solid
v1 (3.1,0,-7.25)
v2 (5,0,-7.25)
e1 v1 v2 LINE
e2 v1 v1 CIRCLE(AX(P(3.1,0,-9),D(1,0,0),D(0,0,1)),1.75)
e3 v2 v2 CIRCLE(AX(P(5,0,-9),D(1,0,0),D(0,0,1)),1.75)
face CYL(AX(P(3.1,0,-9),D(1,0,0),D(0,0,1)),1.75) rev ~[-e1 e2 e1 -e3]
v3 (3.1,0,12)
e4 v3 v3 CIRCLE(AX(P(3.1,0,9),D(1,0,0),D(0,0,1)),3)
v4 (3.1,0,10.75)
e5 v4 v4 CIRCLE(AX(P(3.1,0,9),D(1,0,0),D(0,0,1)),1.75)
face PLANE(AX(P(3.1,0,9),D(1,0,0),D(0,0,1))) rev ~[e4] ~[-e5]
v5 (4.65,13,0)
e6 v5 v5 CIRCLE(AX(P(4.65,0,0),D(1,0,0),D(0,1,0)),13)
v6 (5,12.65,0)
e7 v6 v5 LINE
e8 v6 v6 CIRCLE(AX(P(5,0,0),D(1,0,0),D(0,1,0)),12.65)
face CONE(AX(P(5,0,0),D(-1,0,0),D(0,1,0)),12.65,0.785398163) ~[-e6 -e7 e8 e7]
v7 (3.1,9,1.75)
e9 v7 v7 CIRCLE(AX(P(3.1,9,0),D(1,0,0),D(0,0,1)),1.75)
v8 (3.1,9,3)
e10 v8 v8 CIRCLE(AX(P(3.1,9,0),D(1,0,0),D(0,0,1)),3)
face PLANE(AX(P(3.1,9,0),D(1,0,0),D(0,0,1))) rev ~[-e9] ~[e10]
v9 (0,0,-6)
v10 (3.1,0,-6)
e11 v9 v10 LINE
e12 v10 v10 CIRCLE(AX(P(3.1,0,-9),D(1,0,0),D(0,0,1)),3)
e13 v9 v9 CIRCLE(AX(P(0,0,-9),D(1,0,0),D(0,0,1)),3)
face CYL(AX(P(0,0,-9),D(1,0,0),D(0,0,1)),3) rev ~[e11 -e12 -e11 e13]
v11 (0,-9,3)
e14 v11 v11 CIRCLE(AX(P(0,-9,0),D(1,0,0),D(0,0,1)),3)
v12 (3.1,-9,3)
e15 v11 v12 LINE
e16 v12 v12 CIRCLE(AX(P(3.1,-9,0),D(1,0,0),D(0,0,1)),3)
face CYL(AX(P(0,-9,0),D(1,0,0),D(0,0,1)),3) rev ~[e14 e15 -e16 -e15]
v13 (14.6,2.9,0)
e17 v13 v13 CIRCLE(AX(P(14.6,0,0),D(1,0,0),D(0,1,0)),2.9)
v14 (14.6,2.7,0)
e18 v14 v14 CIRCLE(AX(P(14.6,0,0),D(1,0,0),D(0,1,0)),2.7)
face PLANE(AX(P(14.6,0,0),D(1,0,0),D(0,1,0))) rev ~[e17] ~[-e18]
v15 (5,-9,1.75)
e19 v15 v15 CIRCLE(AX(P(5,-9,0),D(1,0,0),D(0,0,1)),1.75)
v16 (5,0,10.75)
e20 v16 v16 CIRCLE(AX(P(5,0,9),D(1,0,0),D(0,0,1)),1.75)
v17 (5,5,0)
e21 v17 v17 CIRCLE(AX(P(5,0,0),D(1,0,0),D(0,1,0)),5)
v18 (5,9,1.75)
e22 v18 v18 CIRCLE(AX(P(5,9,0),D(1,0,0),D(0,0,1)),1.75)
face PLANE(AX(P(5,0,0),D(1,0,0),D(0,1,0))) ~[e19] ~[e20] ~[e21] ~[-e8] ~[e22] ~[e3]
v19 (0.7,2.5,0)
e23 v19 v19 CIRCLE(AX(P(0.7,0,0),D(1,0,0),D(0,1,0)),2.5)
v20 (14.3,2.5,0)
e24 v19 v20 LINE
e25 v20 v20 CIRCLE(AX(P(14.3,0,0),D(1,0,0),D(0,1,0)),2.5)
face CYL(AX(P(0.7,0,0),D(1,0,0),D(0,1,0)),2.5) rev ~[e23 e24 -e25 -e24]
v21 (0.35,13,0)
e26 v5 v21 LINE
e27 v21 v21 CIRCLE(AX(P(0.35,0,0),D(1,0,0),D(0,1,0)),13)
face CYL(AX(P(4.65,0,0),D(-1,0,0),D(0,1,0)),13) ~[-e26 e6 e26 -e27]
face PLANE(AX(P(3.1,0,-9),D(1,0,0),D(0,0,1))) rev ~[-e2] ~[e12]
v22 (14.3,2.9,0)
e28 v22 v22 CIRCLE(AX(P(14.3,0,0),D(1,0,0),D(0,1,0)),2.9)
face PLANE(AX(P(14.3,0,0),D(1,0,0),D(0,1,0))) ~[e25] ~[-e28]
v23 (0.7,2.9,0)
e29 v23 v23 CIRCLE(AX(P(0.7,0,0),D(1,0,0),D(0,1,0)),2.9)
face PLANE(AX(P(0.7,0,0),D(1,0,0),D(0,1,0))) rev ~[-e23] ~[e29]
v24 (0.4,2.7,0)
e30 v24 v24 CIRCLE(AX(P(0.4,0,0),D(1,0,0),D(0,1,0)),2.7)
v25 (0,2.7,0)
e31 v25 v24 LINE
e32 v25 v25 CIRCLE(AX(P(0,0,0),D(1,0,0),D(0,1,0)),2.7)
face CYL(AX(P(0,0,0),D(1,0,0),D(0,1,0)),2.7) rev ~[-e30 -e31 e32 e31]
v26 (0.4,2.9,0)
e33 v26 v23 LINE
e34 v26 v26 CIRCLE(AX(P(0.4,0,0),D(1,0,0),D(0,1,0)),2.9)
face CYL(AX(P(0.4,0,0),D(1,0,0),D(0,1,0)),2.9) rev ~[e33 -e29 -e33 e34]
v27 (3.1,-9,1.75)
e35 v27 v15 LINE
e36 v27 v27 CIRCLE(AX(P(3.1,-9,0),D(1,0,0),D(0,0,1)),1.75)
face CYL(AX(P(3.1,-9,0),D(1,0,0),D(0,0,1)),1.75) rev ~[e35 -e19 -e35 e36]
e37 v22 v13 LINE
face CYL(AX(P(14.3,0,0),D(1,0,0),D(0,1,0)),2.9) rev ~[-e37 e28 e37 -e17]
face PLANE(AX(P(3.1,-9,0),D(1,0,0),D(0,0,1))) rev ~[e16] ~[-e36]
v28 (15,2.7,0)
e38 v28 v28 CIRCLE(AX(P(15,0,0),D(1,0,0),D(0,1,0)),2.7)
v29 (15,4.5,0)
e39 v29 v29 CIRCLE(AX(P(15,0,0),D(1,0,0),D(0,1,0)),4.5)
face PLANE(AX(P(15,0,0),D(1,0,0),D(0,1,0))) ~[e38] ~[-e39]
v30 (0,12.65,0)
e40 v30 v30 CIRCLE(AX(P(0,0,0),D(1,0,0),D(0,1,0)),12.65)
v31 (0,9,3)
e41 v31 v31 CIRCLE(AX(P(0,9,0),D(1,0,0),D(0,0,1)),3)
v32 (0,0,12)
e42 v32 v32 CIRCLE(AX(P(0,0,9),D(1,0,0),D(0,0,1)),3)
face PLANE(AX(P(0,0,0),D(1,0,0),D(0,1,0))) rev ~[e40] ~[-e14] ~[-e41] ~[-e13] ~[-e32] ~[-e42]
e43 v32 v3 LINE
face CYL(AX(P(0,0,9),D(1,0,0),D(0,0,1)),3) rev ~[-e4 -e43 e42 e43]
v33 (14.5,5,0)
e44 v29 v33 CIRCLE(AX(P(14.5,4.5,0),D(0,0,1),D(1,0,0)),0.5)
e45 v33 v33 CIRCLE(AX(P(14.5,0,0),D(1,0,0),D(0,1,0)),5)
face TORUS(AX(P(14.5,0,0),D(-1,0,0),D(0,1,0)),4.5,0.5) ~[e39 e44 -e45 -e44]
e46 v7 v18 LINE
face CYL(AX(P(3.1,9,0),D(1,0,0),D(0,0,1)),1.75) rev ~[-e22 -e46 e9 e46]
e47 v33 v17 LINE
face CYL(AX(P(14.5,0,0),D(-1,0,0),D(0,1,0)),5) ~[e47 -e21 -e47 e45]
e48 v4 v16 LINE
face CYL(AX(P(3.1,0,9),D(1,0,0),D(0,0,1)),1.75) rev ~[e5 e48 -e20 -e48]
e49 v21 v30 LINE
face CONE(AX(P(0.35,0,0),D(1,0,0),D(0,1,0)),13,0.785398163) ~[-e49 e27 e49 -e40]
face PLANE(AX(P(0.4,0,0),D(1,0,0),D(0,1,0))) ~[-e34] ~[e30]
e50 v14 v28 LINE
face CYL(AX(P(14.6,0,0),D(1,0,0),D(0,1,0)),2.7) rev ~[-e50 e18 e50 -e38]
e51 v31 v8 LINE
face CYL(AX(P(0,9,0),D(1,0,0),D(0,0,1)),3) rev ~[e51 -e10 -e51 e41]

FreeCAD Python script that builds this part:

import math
import FreeCAD as App
import Part
import Sketcher

doc = App.newDocument("Part")
body = doc.addObject("PartDesign::Body", "Body")

# Sketch on XY plane
sketch1 = doc.addObject("Sketcher::SketchObject", "Sketch")
body.addObject(sketch1)
sketch1.AttachmentSupport = (doc.XY_Plane, [""])
sketch1.MapMode = "FlatFace"
sketch1.addGeometry([
    Part.LineSegment(App.Vector(0, 12.65, 0), App.Vector(0, 2.7, 0)),  # 0
    Part.LineSegment(App.Vector(0, 2.7, 0), App.Vector(0.4, 2.7, 0)),  # 1
    Part.LineSegment(App.Vector(0.4, 2.7, 0), App.Vector(0.4, 2.9, 0)),  # 2
    Part.LineSegment(App.Vector(0.4, 2.9, 0), App.Vector(0.7, 2.9, 0)),  # 3
    Part.LineSegment(App.Vector(0.7, 2.9, 0), App.Vector(0.7, 2.5, 0)),  # 4
    Part.LineSegment(App.Vector(0.7, 2.5, 0), App.Vector(14.3, 2.5, 0)),  # 5
    Part.LineSegment(App.Vector(14.3, 2.5, 0), App.Vector(14.3, 2.9, 0)),  # 6
    Part.LineSegment(App.Vector(14.3, 2.9, 0), App.Vector(14.6, 2.9, 0)),  # 7
    Part.LineSegment(App.Vector(14.6, 2.9, 0), App.Vector(14.6, 2.7, 0)),  # 8
    Part.LineSegment(App.Vector(14.6, 2.7, 0), App.Vector(15, 2.7, 0)),  # 9
    Part.LineSegment(App.Vector(15, 2.7, 0), App.Vector(15, 4.5, 0)),  # 10
    Part.ArcOfCircle(Part.Circle(App.Vector(14.5, 4.5, 0), App.Vector(0, 0, 1), 0.5), math.radians(0), math.radians(90)),  # 11
    Part.LineSegment(App.Vector(14.5, 5, 0), App.Vector(5, 5, 0)),  # 12
    Part.LineSegment(App.Vector(5, 5, 0), App.Vector(5, 12.65, 0)),  # 13
    Part.LineSegment(App.Vector(5, 12.65, 0), App.Vector(4.65, 13, 0)),  # 14
    Part.LineSegment(App.Vector(4.65, 13, 0), App.Vector(0.35, 13, 0)),  # 15
    Part.LineSegment(App.Vector(0.35, 13, 0), App.Vector(0, 12.65, 0)),  # 16
], False)
sketch1.addConstraint([
    Sketcher.Constraint("Coincident", 0, 2, 1, 1),
    Sketcher.Constraint("Coincident", 1, 2, 2, 1),
    Sketcher.Constraint("Coincident", 2, 2, 3, 1),
    Sketcher.Constraint("Coincident", 3, 2, 4, 1),
    Sketcher.Constraint("Coincident", 4, 2, 5, 1),
    Sketcher.Constraint("Coincident", 5, 2, 6, 1),
    Sketcher.Constraint("Coincident", 6, 2, 7, 1),
    Sketcher.Constraint("Coincident", 7, 2, 8, 1),
    Sketcher.Constraint("Coincident", 8, 2, 9, 1),
    Sketcher.Constraint("Coincident", 9, 2, 10, 1),
    Sketcher.Constraint("Tangent", 10, 2, 11, 1),
    Sketcher.Constraint("Tangent", 11, 2, 12, 1),
    Sketcher.Constraint("Coincident", 12, 2, 13, 1),
    Sketcher.Constraint("Coincident", 13, 2, 14, 1),
    Sketcher.Constraint("Coincident", 14, 2, 15, 1),
    Sketcher.Constraint("Coincident", 15, 2, 16, 1),
    Sketcher.Constraint("Coincident", 16, 2, 0, 1),
    Sketcher.Constraint("Vertical", 0),
    Sketcher.Constraint("Horizontal", 1),
    Sketcher.Constraint("Vertical", 2),
    Sketcher.Constraint("Horizontal", 3),
    Sketcher.Constraint("Vertical", 4),
    Sketcher.Constraint("Horizontal", 5),
    Sketcher.Constraint("Vertical", 6),
    Sketcher.Constraint("Horizontal", 7),
    Sketcher.Constraint("Vertical", 8),
    Sketcher.Constraint("Horizontal", 9),
    Sketcher.Constraint("Vertical", 10),
    Sketcher.Constraint("Horizontal", 12),
    Sketcher.Constraint("Vertical", 13),
    Sketcher.Constraint("Horizontal", 15),
    Sketcher.Constraint("PointOnObject", 0, 2, -2),
    Sketcher.Constraint("Perpendicular", 14, 16),
    Sketcher.Constraint("Horizontal", 3, 2, 6, 2),
    Sketcher.Constraint("Horizontal", 1, 2, 8, 2),
    Sketcher.Constraint("Horizontal", 13, 2, 16, 2),
    Sketcher.Constraint("Equal", 3, 7),
    Sketcher.Constraint("Equal", 1, 9),
    Sketcher.Constraint("Equal", 9, 4),
    Sketcher.Constraint("Equal", 14, 16),
    Sketcher.Constraint("Radius", 11, 0.5),
    Sketcher.Constraint("DistanceX", 1, 1, 1, 2, 0.4),
    Sketcher.Constraint("DistanceX", 3, 1, 3, 2, 0.3),
    Sketcher.Constraint("DistanceX", 5, 1, 5, 2, 13.6),
    Sketcher.Constraint("DistanceX", 12, 2, 12, 1, 9.5),
    Sketcher.Constraint("DistanceX", 15, 2, 15, 1, 4.3),
    Sketcher.Constraint("DistanceY", 2, 1, 2, 2, 0.2),
    Sketcher.Constraint("DistanceY", 10, 1, 10, 2, 1.8),
    Sketcher.Constraint("DistanceY", -1, 1, 11, 2, 5.0),
    Sketcher.Constraint("DistanceY", -1, 1, 14, 2, 13.0),
])
revolution = doc.addObject("PartDesign::Revolution", "Revolution")
body.addObject(revolution)
revolution.Profile = sketch1
revolution.ReferenceAxis = (sketch1, ["H_Axis"])
revolution.Angle = 360

# Sketch on YZ plane
sketch2 = doc.addObject("Sketcher::SketchObject", "Sketch001")
body.addObject(sketch2)
sketch2.AttachmentSupport = (doc.YZ_Plane, [""])
sketch2.MapMode = "FlatFace"
sketch2.addGeometry(Part.Circle(App.Vector(9, 0, 0), App.Vector(0, 0, 1), 1.8), False)
sketch2.addConstraint([
    Sketcher.Constraint("PointOnObject", 0, 3, -1),
    Sketcher.Constraint("Diameter", 0, 3.5),
    Sketcher.Constraint("DistanceX", -1, 1, 0, 3, 9.0),
])
doc.recompute()
hole = doc.addObject("PartDesign::Hole", "Hole")
body.addObject(hole)
hole.Profile = sketch2
hole.ThreadType = "None"
hole.Diameter = 3.5
hole.DepthType = "Dimension"
hole.Depth = 5
hole.DrillPoint = "Flat"
hole.HoleCutType = "Counterbore"
hole.HoleCutDiameter = 6
hole.HoleCutDepth = 3.1
hole.Reversed = True

# Sketch on YZ plane
sketch3 = doc.addObject("Sketcher::SketchObject", "Sketch002")
body.addObject(sketch3)
sketch3.AttachmentSupport = (doc.YZ_Plane, [""])
sketch3.MapMode = "FlatFace"
sketch3.addGeometry(Part.Circle(App.Vector(-9, 0, 0), App.Vector(0, 0, 1), 1.8), False)
sketch3.addConstraint([
    Sketcher.Constraint("PointOnObject", 0, 3, -1),
    Sketcher.Constraint("Diameter", 0, 3.5),
    Sketcher.Constraint("DistanceX", 0, 3, -1, 1, 9.0),
])
doc.recompute()
hole2 = doc.addObject("PartDesign::Hole", "Hole001")
body.addObject(hole2)
hole2.Profile = sketch3
hole2.ThreadType = "None"
hole2.Diameter = 3.5
hole2.DepthType = "Dimension"
hole2.Depth = 5
hole2.DrillPoint = "Flat"
hole2.HoleCutType = "Counterbore"
hole2.HoleCutDiameter = 6
hole2.HoleCutDepth = 3.1
hole2.Reversed = True

# Sketch on YZ plane
sketch4 = doc.addObject("Sketcher::SketchObject", "Sketch003")
body.addObject(sketch4)
sketch4.AttachmentSupport = (doc.YZ_Plane, [""])
sketch4.MapMode = "FlatFace"
sketch4.addGeometry(Part.Circle(App.Vector(0, -9, 0), App.Vector(0, 0, 1), 1.8), False)
sketch4.addConstraint([
    Sketcher.Constraint("PointOnObject", 0, 3, -2),
    Sketcher.Constraint("Diameter", 0, 3.5),
    Sketcher.Constraint("DistanceY", 0, 3, -1, 1, 9.0),
])
doc.recompute()
hole3 = doc.addObject("PartDesign::Hole", "Hole002")
body.addObject(hole3)
hole3.Profile = sketch4
hole3.ThreadType = "None"
hole3.Diameter = 3.5
hole3.DepthType = "Dimension"
hole3.Depth = 5
hole3.DrillPoint = "Flat"
hole3.HoleCutType = "Counterbore"
hole3.HoleCutDiameter = 6
hole3.HoleCutDepth = 3.1
hole3.Reversed = True

# Sketch on YZ plane
sketch5 = doc.addObject("Sketcher::SketchObject", "Sketch004")
body.addObject(sketch5)
sketch5.AttachmentSupport = (doc.YZ_Plane, [""])
sketch5.MapMode = "FlatFace"
sketch5.addGeometry(Part.Circle(App.Vector(0, 9, 0), App.Vector(0, 0, 1), 1.8), False)
sketch5.addConstraint([
    Sketcher.Constraint("PointOnObject", 0, 3, -2),
    Sketcher.Constraint("Diameter", 0, 3.5),
    Sketcher.Constraint("DistanceY", -1, 1, 0, 3, 9.0),
])
doc.recompute()
hole4 = doc.addObject("PartDesign::Hole", "Hole003")
body.addObject(hole4)
hole4.Profile = sketch5
hole4.ThreadType = "None"
hole4.Diameter = 3.5
hole4.DepthType = "Dimension"
hole4.Depth = 5
hole4.DrillPoint = "Flat"
hole4.HoleCutType = "Counterbore"
hole4.HoleCutDiameter = 6
hole4.HoleCutDepth = 3.1
hole4.Reversed = True

doc.recompute()
